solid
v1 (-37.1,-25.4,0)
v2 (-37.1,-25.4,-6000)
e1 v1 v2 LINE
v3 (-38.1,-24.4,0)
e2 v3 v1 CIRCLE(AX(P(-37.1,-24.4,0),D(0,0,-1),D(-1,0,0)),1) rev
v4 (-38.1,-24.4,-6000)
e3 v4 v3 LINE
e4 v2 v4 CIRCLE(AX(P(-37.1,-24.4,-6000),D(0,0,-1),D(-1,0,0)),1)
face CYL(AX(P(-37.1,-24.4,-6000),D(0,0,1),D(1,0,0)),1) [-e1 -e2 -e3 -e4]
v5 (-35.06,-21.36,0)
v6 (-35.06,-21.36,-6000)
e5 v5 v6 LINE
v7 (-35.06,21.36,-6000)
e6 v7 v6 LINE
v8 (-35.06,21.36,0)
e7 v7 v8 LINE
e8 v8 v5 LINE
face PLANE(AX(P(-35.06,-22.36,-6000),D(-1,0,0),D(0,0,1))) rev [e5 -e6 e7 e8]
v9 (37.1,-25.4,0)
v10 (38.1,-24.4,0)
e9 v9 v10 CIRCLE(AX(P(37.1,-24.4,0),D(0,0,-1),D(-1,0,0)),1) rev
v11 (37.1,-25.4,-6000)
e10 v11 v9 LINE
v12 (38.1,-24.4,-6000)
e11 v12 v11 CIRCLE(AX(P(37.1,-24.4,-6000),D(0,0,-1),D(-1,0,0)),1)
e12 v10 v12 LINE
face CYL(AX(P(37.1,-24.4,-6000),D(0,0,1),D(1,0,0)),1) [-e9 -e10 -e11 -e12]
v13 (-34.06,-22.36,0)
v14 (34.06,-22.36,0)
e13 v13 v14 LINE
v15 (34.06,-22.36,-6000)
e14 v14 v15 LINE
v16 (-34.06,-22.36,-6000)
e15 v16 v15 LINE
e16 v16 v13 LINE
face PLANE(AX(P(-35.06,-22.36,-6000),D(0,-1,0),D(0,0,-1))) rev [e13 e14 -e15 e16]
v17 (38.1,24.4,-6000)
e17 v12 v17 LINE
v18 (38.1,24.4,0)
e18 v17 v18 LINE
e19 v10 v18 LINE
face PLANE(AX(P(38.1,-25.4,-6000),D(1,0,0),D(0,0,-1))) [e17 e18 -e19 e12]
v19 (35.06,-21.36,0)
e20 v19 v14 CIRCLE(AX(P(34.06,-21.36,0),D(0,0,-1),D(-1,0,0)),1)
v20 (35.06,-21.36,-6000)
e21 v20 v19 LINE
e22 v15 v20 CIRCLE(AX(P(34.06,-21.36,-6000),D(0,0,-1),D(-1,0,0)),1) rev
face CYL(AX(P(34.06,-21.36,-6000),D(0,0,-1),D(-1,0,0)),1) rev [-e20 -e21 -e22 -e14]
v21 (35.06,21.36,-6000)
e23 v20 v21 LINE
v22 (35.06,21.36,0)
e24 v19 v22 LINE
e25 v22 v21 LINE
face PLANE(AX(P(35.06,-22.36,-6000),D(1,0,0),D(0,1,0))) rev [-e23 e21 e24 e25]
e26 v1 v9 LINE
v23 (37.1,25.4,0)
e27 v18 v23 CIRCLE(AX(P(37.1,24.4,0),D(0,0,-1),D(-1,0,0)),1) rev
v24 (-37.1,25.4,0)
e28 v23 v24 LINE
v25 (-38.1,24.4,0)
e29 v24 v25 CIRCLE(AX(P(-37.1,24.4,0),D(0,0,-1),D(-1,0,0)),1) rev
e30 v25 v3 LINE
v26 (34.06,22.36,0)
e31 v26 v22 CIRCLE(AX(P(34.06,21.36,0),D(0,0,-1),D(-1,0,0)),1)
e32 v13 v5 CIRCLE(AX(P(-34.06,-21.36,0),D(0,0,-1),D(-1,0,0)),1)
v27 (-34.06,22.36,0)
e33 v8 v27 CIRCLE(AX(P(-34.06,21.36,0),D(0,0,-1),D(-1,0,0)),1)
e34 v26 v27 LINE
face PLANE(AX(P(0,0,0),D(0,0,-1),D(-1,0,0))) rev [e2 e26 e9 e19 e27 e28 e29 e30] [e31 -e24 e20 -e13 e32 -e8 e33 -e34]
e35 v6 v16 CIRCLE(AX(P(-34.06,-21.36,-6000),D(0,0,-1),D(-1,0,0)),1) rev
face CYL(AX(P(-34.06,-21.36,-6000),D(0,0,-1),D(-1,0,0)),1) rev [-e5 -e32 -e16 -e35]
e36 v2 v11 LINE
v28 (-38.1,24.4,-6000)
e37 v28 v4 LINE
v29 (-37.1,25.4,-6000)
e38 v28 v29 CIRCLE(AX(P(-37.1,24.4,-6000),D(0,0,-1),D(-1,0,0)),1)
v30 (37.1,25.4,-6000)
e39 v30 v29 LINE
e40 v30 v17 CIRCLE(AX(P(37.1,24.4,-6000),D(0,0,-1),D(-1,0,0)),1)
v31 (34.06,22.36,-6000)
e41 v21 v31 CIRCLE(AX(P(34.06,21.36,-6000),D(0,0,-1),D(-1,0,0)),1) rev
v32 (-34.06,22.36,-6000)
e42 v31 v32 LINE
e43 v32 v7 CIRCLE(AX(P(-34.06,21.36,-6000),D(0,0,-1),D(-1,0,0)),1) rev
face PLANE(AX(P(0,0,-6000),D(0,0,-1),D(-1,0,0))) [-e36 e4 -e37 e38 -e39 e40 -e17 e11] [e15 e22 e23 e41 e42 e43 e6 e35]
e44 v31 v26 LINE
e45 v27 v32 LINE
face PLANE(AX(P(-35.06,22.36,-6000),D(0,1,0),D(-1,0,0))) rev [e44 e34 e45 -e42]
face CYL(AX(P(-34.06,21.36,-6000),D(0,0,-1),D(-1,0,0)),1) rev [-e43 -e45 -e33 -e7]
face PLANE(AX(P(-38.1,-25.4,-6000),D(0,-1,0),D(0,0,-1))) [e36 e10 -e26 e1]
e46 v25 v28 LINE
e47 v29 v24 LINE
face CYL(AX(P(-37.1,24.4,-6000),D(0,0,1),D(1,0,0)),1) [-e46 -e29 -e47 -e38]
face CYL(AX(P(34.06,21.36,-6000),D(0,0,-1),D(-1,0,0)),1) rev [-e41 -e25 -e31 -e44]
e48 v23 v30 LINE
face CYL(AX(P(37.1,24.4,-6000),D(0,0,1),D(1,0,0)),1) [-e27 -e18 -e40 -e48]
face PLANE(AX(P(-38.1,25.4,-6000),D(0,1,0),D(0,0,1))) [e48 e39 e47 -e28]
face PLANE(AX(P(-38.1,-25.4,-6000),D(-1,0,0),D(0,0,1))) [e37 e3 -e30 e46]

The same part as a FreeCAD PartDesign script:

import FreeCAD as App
import Part
import Sketcher
from FreeCAD import Vector


def edges_at(feature, points):
    """Names of the edges that pass closest to the given points."""
    edges = feature.Shape.Edges
    near = lambda p: min(range(len(edges)), key=lambda i: edges[i].distToShape(Part.Vertex(*p))[0])
    return sorted({f"Edge{near(p) + 1}" for p in points})

doc = App.newDocument("Part")
params = doc.addObject("Spreadsheet::Sheet", "Params")
for row, (alias, value) in enumerate([
    ("sketch1_width", "76.2 mm"),
    ("sketch1_height", "50.8 mm"),
    ("sketch1_width2", "70.12 mm"),
    ("sketch1_height2", "44.72 mm"),
    ("pad1_length", "6000 mm"),
    ("fillet_radius", "1 mm"),
], start=1):
    params.set(f"A{row}", alias)
    params.set(f"B{row}", "=" + value)
    params.setAlias(f"B{row}", alias)

body = doc.addObject("PartDesign::Body", "Body")

sketch1 = body.newObject("Sketcher::SketchObject", "Sketch")
sketch1.AttachmentSupport = (doc.getObject("XY_Plane"), [""])
sketch1.MapMode = "FlatFace"
sketch1.addGeometry(Part.LineSegment(Vector(-38, 25, 0), Vector(-38, -25, 0)), False)
sketch1.addGeometry(Part.LineSegment(Vector(-38, -25, 0), Vector(38, -25, 0)), False)
sketch1.addGeometry(Part.LineSegment(Vector(38, -25, 0), Vector(38, 25, 0)), False)
sketch1.addGeometry(Part.LineSegment(Vector(38, 25, 0), Vector(-38, 25, 0)), False)
sketch1.addGeometry(Part.LineSegment(Vector(35, -22, 0), Vector(-35, -22, 0)), False)
sketch1.addGeometry(Part.LineSegment(Vector(-35, -22, 0), Vector(-35, 22, 0)), False)
sketch1.addGeometry(Part.LineSegment(Vector(-35, 22, 0), Vector(35, 22, 0)), False)
sketch1.addGeometry(Part.LineSegment(Vector(35, 22, 0), Vector(35, -22, 0)), False)
sketch1.addConstraint(Sketcher.Constraint("Coincident", 0, 2, 1, 1))
sketch1.addConstraint(Sketcher.Constraint("Coincident", 1, 2, 2, 1))
sketch1.addConstraint(Sketcher.Constraint("Coincident", 2, 2, 3, 1))
sketch1.addConstraint(Sketcher.Constraint("Coincident", 3, 2, 0, 1))
sketch1.addConstraint(Sketcher.Constraint("Coincident", 4, 2, 5, 1))
sketch1.addConstraint(Sketcher.Constraint("Coincident", 5, 2, 6, 1))
sketch1.addConstraint(Sketcher.Constraint("Coincident", 6, 2, 7, 1))
sketch1.addConstraint(Sketcher.Constraint("Coincident", 7, 2, 4, 1))
sketch1.addConstraint(Sketcher.Constraint("Vertical", 0))
sketch1.addConstraint(Sketcher.Constraint("Horizontal", 1))
sketch1.addConstraint(Sketcher.Constraint("Vertical", 2))
sketch1.addConstraint(Sketcher.Constraint("Horizontal", 3))
sketch1.addConstraint(Sketcher.Constraint("Horizontal", 4))
sketch1.addConstraint(Sketcher.Constraint("Vertical", 5))
sketch1.addConstraint(Sketcher.Constraint("Horizontal", 6))
sketch1.addConstraint(Sketcher.Constraint("Vertical", 7))
sketch1.addConstraint(Sketcher.Constraint("Symmetric", 0, 2, 2, 2, -1, 1))
sketch1.addConstraint(Sketcher.Constraint("Symmetric", 4, 2, 6, 2, -1, 1))
sketch1.addConstraint(Sketcher.Constraint("DistanceX", 1, 1, 1, 2, 76.2))
sketch1.addConstraint(Sketcher.Constraint("DistanceY", 0, 2, 0, 1, 50.8))
sketch1.addConstraint(Sketcher.Constraint("DistanceX", 4, 2, 4, 1, 70.12))
sketch1.addConstraint(Sketcher.Constraint("DistanceY", 5, 1, 5, 2, 44.72))
sketch1.setExpression("Constraints[18]", "Params.sketch1_width")
sketch1.setExpression("Constraints[19]", "Params.sketch1_height")
sketch1.setExpression("Constraints[20]", "Params.sketch1_width2")
sketch1.setExpression("Constraints[21]", "Params.sketch1_height2")
pad1 = body.newObject("PartDesign::Pad", "Pad")
pad1.Profile = sketch1
pad1.setExpression("Length", "Params.pad1_length")
pad1.Reversed = True
doc.recompute()

fillet = body.newObject("PartDesign::Fillet", "Fillet")
fillet.Base = (pad1, edges_at(pad1, [
    (35.06, -22.36, -3000),
    (-35.06, -22.36, -3000),
    (-35.06, 22.36, -3000),
    (35.06, 22.36, -3000),
    (38.1, -25.4, -3000),
    (-38.1, -25.4, -3000),
    (-38.1, 25.4, -3000),
    (38.1, 25.4, -3000),
]))
fillet.setExpression("Radius", "Params.fillet_radius")

doc.recompute()
